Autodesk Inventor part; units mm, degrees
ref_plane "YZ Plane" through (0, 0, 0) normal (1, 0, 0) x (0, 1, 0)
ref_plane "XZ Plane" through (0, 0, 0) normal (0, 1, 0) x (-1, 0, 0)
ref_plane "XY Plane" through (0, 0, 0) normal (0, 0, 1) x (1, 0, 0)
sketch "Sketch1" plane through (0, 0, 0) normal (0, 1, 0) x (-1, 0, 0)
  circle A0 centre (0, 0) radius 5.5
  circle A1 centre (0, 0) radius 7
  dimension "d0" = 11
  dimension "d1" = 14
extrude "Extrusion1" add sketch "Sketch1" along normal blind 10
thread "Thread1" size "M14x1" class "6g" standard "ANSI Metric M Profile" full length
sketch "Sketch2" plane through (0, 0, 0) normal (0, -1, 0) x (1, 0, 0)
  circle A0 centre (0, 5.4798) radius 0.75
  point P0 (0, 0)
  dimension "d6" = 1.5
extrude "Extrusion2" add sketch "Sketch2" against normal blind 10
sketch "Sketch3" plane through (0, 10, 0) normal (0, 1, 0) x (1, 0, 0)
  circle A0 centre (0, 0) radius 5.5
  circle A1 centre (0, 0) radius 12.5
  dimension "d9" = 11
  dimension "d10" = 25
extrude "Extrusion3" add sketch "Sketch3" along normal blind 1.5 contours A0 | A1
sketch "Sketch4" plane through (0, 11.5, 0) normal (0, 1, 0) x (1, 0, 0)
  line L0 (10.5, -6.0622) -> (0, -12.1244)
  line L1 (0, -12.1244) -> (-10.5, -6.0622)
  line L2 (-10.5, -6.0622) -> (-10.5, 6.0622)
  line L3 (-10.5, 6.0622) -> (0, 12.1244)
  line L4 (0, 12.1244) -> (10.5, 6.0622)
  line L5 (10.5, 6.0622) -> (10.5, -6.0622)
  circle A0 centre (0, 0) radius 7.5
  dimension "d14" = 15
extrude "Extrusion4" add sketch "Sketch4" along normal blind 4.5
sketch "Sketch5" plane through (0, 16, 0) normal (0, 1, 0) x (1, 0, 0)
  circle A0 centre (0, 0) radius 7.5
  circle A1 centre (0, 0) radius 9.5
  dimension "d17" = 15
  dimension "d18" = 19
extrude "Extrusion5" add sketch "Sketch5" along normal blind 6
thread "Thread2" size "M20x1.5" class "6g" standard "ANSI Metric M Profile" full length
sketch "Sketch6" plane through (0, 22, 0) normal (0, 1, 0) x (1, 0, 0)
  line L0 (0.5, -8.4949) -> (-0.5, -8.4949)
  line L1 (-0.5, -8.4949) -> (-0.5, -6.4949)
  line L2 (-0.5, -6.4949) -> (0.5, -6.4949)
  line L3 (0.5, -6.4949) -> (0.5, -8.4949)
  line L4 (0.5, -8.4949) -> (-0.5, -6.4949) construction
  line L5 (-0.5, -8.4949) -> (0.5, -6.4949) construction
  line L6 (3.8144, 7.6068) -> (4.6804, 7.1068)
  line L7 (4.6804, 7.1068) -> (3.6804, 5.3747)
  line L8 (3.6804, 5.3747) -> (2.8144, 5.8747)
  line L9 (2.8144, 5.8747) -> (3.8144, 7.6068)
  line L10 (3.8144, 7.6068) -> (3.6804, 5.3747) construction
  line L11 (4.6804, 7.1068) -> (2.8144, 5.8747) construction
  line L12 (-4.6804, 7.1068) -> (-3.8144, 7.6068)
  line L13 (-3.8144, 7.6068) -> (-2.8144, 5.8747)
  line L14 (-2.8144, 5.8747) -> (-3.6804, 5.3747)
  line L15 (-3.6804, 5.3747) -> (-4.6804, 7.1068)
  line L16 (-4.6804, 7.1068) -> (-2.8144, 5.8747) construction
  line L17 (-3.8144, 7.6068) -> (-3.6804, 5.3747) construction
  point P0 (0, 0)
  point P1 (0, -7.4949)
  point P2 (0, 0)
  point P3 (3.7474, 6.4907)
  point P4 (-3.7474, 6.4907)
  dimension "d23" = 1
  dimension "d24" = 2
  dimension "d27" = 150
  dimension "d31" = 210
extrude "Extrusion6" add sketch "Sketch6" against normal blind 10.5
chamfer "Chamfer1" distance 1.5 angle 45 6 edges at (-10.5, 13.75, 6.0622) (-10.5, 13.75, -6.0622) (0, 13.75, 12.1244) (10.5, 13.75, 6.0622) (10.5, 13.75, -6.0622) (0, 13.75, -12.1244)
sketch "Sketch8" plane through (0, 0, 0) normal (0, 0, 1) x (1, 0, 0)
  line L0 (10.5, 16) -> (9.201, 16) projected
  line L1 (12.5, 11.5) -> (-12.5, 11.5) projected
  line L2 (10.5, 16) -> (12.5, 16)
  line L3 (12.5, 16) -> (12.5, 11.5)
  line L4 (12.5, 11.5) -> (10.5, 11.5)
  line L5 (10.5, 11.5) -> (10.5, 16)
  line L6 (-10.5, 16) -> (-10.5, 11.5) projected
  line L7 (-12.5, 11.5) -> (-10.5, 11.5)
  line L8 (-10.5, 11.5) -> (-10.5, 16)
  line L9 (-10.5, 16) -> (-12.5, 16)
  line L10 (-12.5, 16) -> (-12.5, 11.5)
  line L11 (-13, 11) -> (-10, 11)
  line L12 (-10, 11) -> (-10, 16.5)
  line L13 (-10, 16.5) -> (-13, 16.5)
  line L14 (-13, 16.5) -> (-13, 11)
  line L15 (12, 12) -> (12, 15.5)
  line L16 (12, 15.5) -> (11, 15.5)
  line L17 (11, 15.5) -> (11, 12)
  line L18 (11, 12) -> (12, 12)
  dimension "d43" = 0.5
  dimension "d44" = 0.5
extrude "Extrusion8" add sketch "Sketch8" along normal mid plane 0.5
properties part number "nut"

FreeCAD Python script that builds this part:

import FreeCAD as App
import Part
import Sketcher

V = App.Vector
Q = App.Units.Quantity


def edges_at(feature, points):
    """Names of the edges that pass closest to the given points."""
    edges = feature.Shape.Edges
    near = lambda p: min(range(len(edges)), key=lambda i: edges[i].distToShape(Part.Vertex(*p))[0])
    return sorted({f"Edge{near(p) + 1}" for p in points})

doc = App.newDocument("Part")
body = doc.addObject("PartDesign::Body", "Body")

sketch1 = body.newObject("Sketcher::SketchObject", "Sketch")
sketch1.AttachmentSupport = (doc.getObject("XZ_Plane"), [""])
sketch1.MapMode = "FlatFace"
sketch1.addGeometry(Part.Circle(V(0, 0, 0), V(0, 0, 1), 7), False)
sketch1.addGeometry(Part.Circle(V(0, 0, 0), V(0, 0, 1), 6), False)
sketch1.addConstraint(Sketcher.Constraint("Coincident", 0, 3, -1, 1))
sketch1.addConstraint(Sketcher.Constraint("Coincident", 1, 3, -1, 1))
sketch1.addConstraint(Sketcher.Constraint("Diameter", 0, Q("14 mm")))
sketch1.addConstraint(Sketcher.Constraint("Diameter", 1, Q("11 mm")))
pad1 = body.newObject("PartDesign::Pad", "Pad")
pad1.Profile = sketch1
pad1.Length = 10
pad1.Reversed = True

sketch2 = body.newObject("Sketcher::SketchObject", "Sketch001")
sketch2.AttachmentSupport = (doc.getObject("XZ_Plane"), [""])
sketch2.MapMode = "FlatFace"
sketch2.addGeometry(Part.Circle(V(0, 5.5, 0), V(0, 0, 1), 0.8), False)
sketch2.addConstraint(Sketcher.Constraint("PointOnObject", 0, 3, -2))
sketch2.addConstraint(Sketcher.Constraint("Diameter", 0, Q("1.5 mm")))
sketch2.addConstraint(Sketcher.Constraint("DistanceY", -1, 1, 0, 3, Q("5.4798 mm")))
pad2 = body.newObject("PartDesign::Pad", "Pad001")
pad2.Profile = sketch2
pad2.Length = 10
pad2.Reversed = True

sketch3 = body.newObject("Sketcher::SketchObject", "Sketch002")
sketch3.AttachmentSupport = (doc.getObject("XZ_Plane"), [""])
sketch3.MapMode = "FlatFace"
sketch3.AttachmentOffset = App.Placement(V(0, 0, -10), App.Rotation())
sketch3.addGeometry(Part.Circle(V(0, 0, 0), V(0, 0, 1), 12), False)
sketch3.addConstraint(Sketcher.Constraint("Coincident", 0, 3, -1, 1))
sketch3.addConstraint(Sketcher.Constraint("Diameter", 0, Q("25 mm")))
pad3 = body.newObject("PartDesign::Pad", "Pad002")
pad3.Profile = sketch3
pad3.Length = 1.5
pad3.Reversed = True

sketch4 = body.newObject("Sketcher::SketchObject", "Sketch003")
sketch4.AttachmentSupport = (doc.getObject("XZ_Plane"), [""])
sketch4.MapMode = "FlatFace"
sketch4.AttachmentOffset = App.Placement(V(0, 0, -11.5), App.Rotation())
sketch4.addGeometry(Part.LineSegment(V(0, 12, 0), V(10, 6, 0)), False)
sketch4.addGeometry(Part.LineSegment(V(10, 6, 0), V(10, -6, 0)), False)
sketch4.addGeometry(Part.LineSegment(V(10, -6, 0), V(0, -12, 0)), False)
sketch4.addGeometry(Part.LineSegment(V(0, -12, 0), V(-10, -6, 0)), False)
sketch4.addGeometry(Part.LineSegment(V(-10, -6, 0), V(-10, 6, 0)), False)
sketch4.addGeometry(Part.LineSegment(V(-10, 6, 0), V(0, 12, 0)), False)
sketch4.addGeometry(Part.Circle(V(0, 0, 0), V(0, 0, 1), 8), False)
sketch4.addConstraint(Sketcher.Constraint("Coincident", 0, 2, 1, 1))
sketch4.addConstraint(Sketcher.Constraint("Coincident", 1, 2, 2, 1))
sketch4.addConstraint(Sketcher.Constraint("Coincident", 2, 2, 3, 1))
sketch4.addConstraint(Sketcher.Constraint("Coincident", 3, 2, 4, 1))
sketch4.addConstraint(Sketcher.Constraint("Coincident", 4, 2, 5, 1))
sketch4.addConstraint(Sketcher.Constraint("Coincident", 5, 2, 0, 1))
sketch4.addConstraint(Sketcher.Constraint("Vertical", 1))
sketch4.addConstraint(Sketcher.Constraint("Vertical", 4))
sketch4.addConstraint(Sketcher.Constraint("Coincident", 6, 3, -1, 1))
sketch4.addConstraint(Sketcher.Constraint("Symmetric", 0, 2, 3, 2, -1, 1))
sketch4.addConstraint(Sketcher.Constraint("Symmetric", 2, 2, 5, 2, -1, 1))
sketch4.addConstraint(Sketcher.Constraint("PointOnObject", 2, 2, -2))
sketch4.addConstraint(Sketcher.Constraint("Parallel", 2, 5))
sketch4.addConstraint(Sketcher.Constraint("Horizontal", 1, 2, 3, 2))
sketch4.addConstraint(Sketcher.Constraint("Diameter", 6, Q("15 mm")))
sketch4.addConstraint(Sketcher.Constraint("Angle", 0, Q("-30 deg")))
sketch4.addConstraint(Sketcher.Constraint("DistanceX", 3, 2, 1, 2, Q("21 mm")))
sketch4.addConstraint(Sketcher.Constraint("DistanceY", 1, 2, 1, 1, Q("12.1244 mm")))
pad4 = body.newObject("PartDesign::Pad", "Pad003")
pad4.Profile = sketch4
pad4.Length = 4.5
pad4.Reversed = True

sketch5 = body.newObject("Sketcher::SketchObject", "Sketch004")
sketch5.AttachmentSupport = (doc.getObject("XZ_Plane"), [""])
sketch5.MapMode = "FlatFace"
sketch5.AttachmentOffset = App.Placement(V(0, 0, -16), App.Rotation())
sketch5.addGeometry(Part.Circle(V(0, 0, 0), V(0, 0, 1), 10), False)
sketch5.addGeometry(Part.Circle(V(0, 0, 0), V(0, 0, 1), 8), False)
sketch5.addConstraint(Sketcher.Constraint("Coincident", 0, 3, -1, 1))
sketch5.addConstraint(Sketcher.Constraint("Coincident", 1, 3, -1, 1))
sketch5.addConstraint(Sketcher.Constraint("Diameter", 0, Q("19 mm")))
sketch5.addConstraint(Sketcher.Constraint("Diameter", 1, Q("15 mm")))
pad5 = body.newObject("PartDesign::Pad", "Pad004")
pad5.Profile = sketch5
pad5.Length = 6
pad5.Reversed = True

sketch6 = body.newObject("Sketcher::SketchObject", "Sketch005")
sketch6.AttachmentSupport = (doc.getObject("XZ_Plane"), [""])
sketch6.MapMode = "FlatFace"
sketch6.AttachmentOffset = App.Placement(V(0, 0, -22), App.Rotation())
sketch6.addGeometry(Part.LineSegment(V(-0.5, 8.5, 0), V(0.5, 8.5, 0)), False)
sketch6.addGeometry(Part.LineSegment(V(0.5, 8.5, 0), V(0.5, 6.5, 0)), False)
sketch6.addGeometry(Part.LineSegment(V(0.5, 6.5, 0), V(-0.5, 6.5, 0)), False)
sketch6.addGeometry(Part.LineSegment(V(-0.5, 6.5, 0), V(-0.5, 8.5, 0)), False)
sketch6.addGeometry(Part.LineSegment(V(4.7, -7.1, 0), V(3.8, -7.6, 0)), False)
sketch6.addGeometry(Part.LineSegment(V(3.8, -7.6, 0), V(2.8, -5.9, 0)), False)
sketch6.addGeometry(Part.LineSegment(V(2.8, -5.9, 0), V(3.7, -5.4, 0)), False)
sketch6.addGeometry(Part.LineSegment(V(3.7, -5.4, 0), V(4.7, -7.1, 0)), False)
sketch6.addGeometry(Part.LineSegment(V(-3.8, -7.6, 0), V(-4.7, -7.1, 0)), False)
sketch6.addGeometry(Part.LineSegment(V(-4.7, -7.1, 0), V(-3.7, -5.4, 0)), False)
sketch6.addGeometry(Part.LineSegment(V(-3.7, -5.4, 0), V(-2.8, -5.9, 0)), False)
sketch6.addGeometry(Part.LineSegment(V(-2.8, -5.9, 0), V(-3.8, -7.6, 0)), False)
sketch6.addConstraint(Sketcher.Constraint("Coincident", 0, 2, 1, 1))
sketch6.addConstraint(Sketcher.Constraint("Coincident", 1, 2, 2, 1))
sketch6.addConstraint(Sketcher.Constraint("Coincident", 2, 2, 3, 1))
sketch6.addConstraint(Sketcher.Constraint("Coincident", 3, 2, 0, 1))
sketch6.addConstraint(Sketcher.Constraint("Coincident", 4, 2, 5, 1))
sketch6.addConstraint(Sketcher.Constraint("Coincident", 5, 2, 6, 1))
sketch6.addConstraint(Sketcher.Constraint("Coincident", 6, 2, 7, 1))
sketch6.addConstraint(Sketcher.Constraint("Coincident", 7, 2, 4, 1))
sketch6.addConstraint(Sketcher.Constraint("Coincident", 8, 2, 9, 1))
sketch6.addConstraint(Sketcher.Constraint("Coincident", 9, 2, 10, 1))
sketch6.addConstraint(Sketcher.Constraint("Coincident", 10, 2, 11, 1))
sketch6.addConstraint(Sketcher.Constraint("Coincident", 11, 2, 8, 1))
sketch6.addConstraint(Sketcher.Constraint("Horizontal", 0))
sketch6.addConstraint(Sketcher.Constraint("Vertical", 1))
sketch6.addConstraint(Sketcher.Constraint("Horizontal", 2))
sketch6.addConstraint(Sketcher.Constraint("Vertical", 3))
sketch6.addConstraint(Sketcher.Constraint("Symmetric", 7, 2, 8, 2, -2))
sketch6.addConstraint(Sketcher.Constraint("Symmetric", 6, 2, 9, 2, -2))
sketch6.addConstraint(Sketcher.Constraint("Symmetric", 5, 2, 10, 2, -2))
sketch6.addConstraint(Sketcher.Constraint("Symmetric", 4, 2, 11, 2, -2))
sketch6.addConstraint(Sketcher.Constraint("Perpendicular", 4, 5))
sketch6.addConstraint(Sketcher.Constraint("Perpendicular", 5, 6))
sketch6.addConstraint(Sketcher.Constraint("Perpendicular", 6, 7))
sketch6.addConstraint(Sketcher.Constraint("DistanceX", 0, 1, 0, 2, Q("1 mm")))
sketch6.addConstraint(Sketcher.Constraint("DistanceY", 1, 2, 1, 1, Q("2 mm")))
sketch6.addConstraint(Sketcher.Constraint("Distance", 4, Q("1 mm")))
sketch6.addConstraint(Sketcher.Constraint("Distance", 5, Q("2 mm")))
sketch6.addConstraint(Sketcher.Constraint("DistanceX", 5, 2, 4, 2, Q("1 mm")))
sketch6.addConstraint(Sketcher.Constraint("DistanceX", -1, 1, 0, 2, Q("0.5 mm")))
sketch6.addConstraint(Sketcher.Constraint("DistanceY", -1, 1, 0, 2, Q("8.495 mm")))
sketch6.addConstraint(Sketcher.Constraint("DistanceX", -1, 1, 4, 2, Q("3.8144 mm")))
sketch6.addConstraint(Sketcher.Constraint("DistanceY", 4, 2, -1, 1, Q("7.6068 mm")))
pad6 = body.newObject("PartDesign::Pad", "Pad005")
pad6.Profile = sketch6
pad6.Length = 10.5
doc.recompute()

chamfer = body.newObject("PartDesign::Chamfer", "Chamfer")
chamfer.Base = (pad6, edges_at(pad6, [
    (-10.5, 13.75, 6.062),
    (-10.5, 13.75, -6.062),
    (0, 13.75, 12.124),
    (10.5, 13.75, 6.062),
    (10.5, 13.75, -6.062),
    (0, 13.75, -12.124),
]))
chamfer.Size = 1.5

sketch7 = body.newObject("Sketcher::SketchObject", "Sketch006")
sketch7.AttachmentSupport = (doc.getObject("XY_Plane"), [""])
sketch7.MapMode = "FlatFace"
sketch7.addGeometry(Part.LineSegment(V(-10, 11, 0), V(-10, 11.5, 0)), False)
sketch7.addGeometry(Part.LineSegment(V(-10, 11.5, 0), V(-10, 16.5, 0)), False)
sketch7.addGeometry(Part.LineSegment(V(-10, 16.5, 0), V(-13, 16.5, 0)), False)
sketch7.addGeometry(Part.LineSegment(V(-13, 16.5, 0), V(-13, 11, 0)), False)
sketch7.addGeometry(Part.LineSegment(V(-13, 11, 0), V(-10, 11, 0)), False)
sketch7.addGeometry(Part.LineSegment(V(-10.5, 16, 0), V(-10.5, 11.5, 0)), False)
sketch7.addGeometry(Part.LineSegment(V(-10.5, 11.5, 0), V(-12.5, 11.5, 0)), False)
sketch7.addGeometry(Part.LineSegment(V(-12.5, 11.5, 0), V(-12.5, 16, 0)), False)
sketch7.addGeometry(Part.LineSegment(V(-12.5, 16, 0), V(-10.5, 16, 0)), False)
sketch7.addGeometry(Part.LineSegment(V(10.5, 11.5, 0), V(12.5, 11.5, 0)), False)
sketch7.addGeometry(Part.LineSegment(V(12.5, 11.5, 0), V(12.5, 16, 0)), False)
sketch7.addGeometry(Part.LineSegment(V(12.5, 16, 0), V(10.5, 16, 0)), False)
sketch7.addGeometry(Part.LineSegment(V(10.5, 16, 0), V(10.5, 11.5, 0)), False)
sketch7.addGeometry(Part.LineSegment(V(12, 15.5, 0), V(12, 12, 0)), False)
sketch7.addGeometry(Part.LineSegment(V(12, 12, 0), V(11, 12, 0)), False)
sketch7.addGeometry(Part.LineSegment(V(11, 12, 0), V(11, 15.5, 0)), False)
sketch7.addGeometry(Part.LineSegment(V(11, 15.5, 0), V(12, 15.5, 0)), False)
sketch7.addConstraint(Sketcher.Constraint("Coincident", 0, 2, 1, 1))
sketch7.addConstraint(Sketcher.Constraint("Coincident", 1, 2, 2, 1))
sketch7.addConstraint(Sketcher.Constraint("Coincident", 2, 2, 3, 1))
sketch7.addConstraint(Sketcher.Constraint("Coincident", 3, 2, 4, 1))
sketch7.addConstraint(Sketcher.Constraint("Coincident", 4, 2, 0, 1))
sketch7.addConstraint(Sketcher.Constraint("Coincident", 5, 2, 6, 1))
sketch7.addConstraint(Sketcher.Constraint("Coincident", 6, 2, 7, 1))
sketch7.addConstraint(Sketcher.Constraint("Coincident", 7, 2, 8, 1))
sketch7.addConstraint(Sketcher.Constraint("Coincident", 8, 2, 5, 1))
sketch7.addConstraint(Sketcher.Constraint("Coincident", 9, 2, 10, 1))
sketch7.addConstraint(Sketcher.Constraint("Coincident", 10, 2, 11, 1))
sketch7.addConstraint(Sketcher.Constraint("Coincident", 11, 2, 12, 1))
sketch7.addConstraint(Sketcher.Constraint("Coincident", 12, 2, 9, 1))
sketch7.addConstraint(Sketcher.Constraint("Coincident", 13, 2, 14, 1))
sketch7.addConstraint(Sketcher.Constraint("Coincident", 14, 2, 15, 1))
sketch7.addConstraint(Sketcher.Constraint("Coincident", 15, 2, 16, 1))
sketch7.addConstraint(Sketcher.Constraint("Coincident", 16, 2, 13, 1))
sketch7.addConstraint(Sketcher.Constraint("Vertical", 0))
sketch7.addConstraint(Sketcher.Constraint("Vertical", 1))
sketch7.addConstraint(Sketcher.Constraint("Horizontal", 2))
sketch7.addConstraint(Sketcher.Constraint("Vertical", 3))
sketch7.addConstraint(Sketcher.Constraint("Horizontal", 4))
sketch7.addConstraint(Sketcher.Constraint("Vertical", 5))
sketch7.addConstraint(Sketcher.Constraint("Horizontal", 6))
sketch7.addConstraint(Sketcher.Constraint("Vertical", 7))
sketch7.addConstraint(Sketcher.Constraint("Horizontal", 8))
sketch7.addConstraint(Sketcher.Constraint("Horizontal", 9))
sketch7.addConstraint(Sketcher.Constraint("Vertical", 10))
sketch7.addConstraint(Sketcher.Constraint("Horizontal", 11))
sketch7.addConstraint(Sketcher.Constraint("Vertical", 12))
sketch7.addConstraint(Sketcher.Constraint("Vertical", 13))
sketch7.addConstraint(Sketcher.Constraint("Horizontal", 14))
sketch7.addConstraint(Sketcher.Constraint("Vertical", 15))
sketch7.addConstraint(Sketcher.Constraint("Horizontal", 16))
sketch7.addConstraint(Sketcher.Constraint("Symmetric", 6, 2, 9, 2, -2))
sketch7.addConstraint(Sketcher.Constraint("Symmetric", 8, 2, 11, 2, -2))
sketch7.addConstraint(Sketcher.Constraint("Horizontal", 0, 2, 5, 2))
sketch7.addConstraint(Sketcher.Constraint("DistanceY", 0, 1, 0, 2, Q("0.5 mm")))
sketch7.addConstraint(Sketcher.Constraint("DistanceX", 5, 2, 0, 2, Q("0.5 mm")))
sketch7.addConstraint(Sketcher.Constraint("DistanceX", 3, 2, 6, 2, Q("0.5 mm")))
sketch7.addConstraint(Sketcher.Constraint("DistanceY", 7, 2, 2, 2, Q("0.5 mm")))
sketch7.addConstraint(Sketcher.Constraint("DistanceX", 13, 2, 9, 2, Q("0.5 mm")))
sketch7.addConstraint(Sketcher.Constraint("DistanceY", 9, 2, 13, 2, Q("0.5 mm")))
sketch7.addConstraint(Sketcher.Constraint("DistanceX", 12, 2, 14, 2, Q("0.5 mm")))
sketch7.addConstraint(Sketcher.Constraint("DistanceY", 15, 2, 11, 2, Q("0.5 mm")))
sketch7.addConstraint(Sketcher.Constraint("DistanceX", 2, 2, 2, 1, Q("3 mm")))
sketch7.addConstraint(Sketcher.Constraint("DistanceY", 1, 1, 1, 2, Q("5 mm")))
sketch7.addConstraint(Sketcher.Constraint("DistanceX", 0, 2, -1, 1, Q("10 mm")))
sketch7.addConstraint(Sketcher.Constraint("DistanceY", -1, 1, 3, 2, Q("11 mm")))
pad7 = body.newObject("PartDesign::Pad", "Pad006")
pad7.Profile = sketch7
pad7.Length = 0.5
pad7.Midplane = True

doc.recompute()
